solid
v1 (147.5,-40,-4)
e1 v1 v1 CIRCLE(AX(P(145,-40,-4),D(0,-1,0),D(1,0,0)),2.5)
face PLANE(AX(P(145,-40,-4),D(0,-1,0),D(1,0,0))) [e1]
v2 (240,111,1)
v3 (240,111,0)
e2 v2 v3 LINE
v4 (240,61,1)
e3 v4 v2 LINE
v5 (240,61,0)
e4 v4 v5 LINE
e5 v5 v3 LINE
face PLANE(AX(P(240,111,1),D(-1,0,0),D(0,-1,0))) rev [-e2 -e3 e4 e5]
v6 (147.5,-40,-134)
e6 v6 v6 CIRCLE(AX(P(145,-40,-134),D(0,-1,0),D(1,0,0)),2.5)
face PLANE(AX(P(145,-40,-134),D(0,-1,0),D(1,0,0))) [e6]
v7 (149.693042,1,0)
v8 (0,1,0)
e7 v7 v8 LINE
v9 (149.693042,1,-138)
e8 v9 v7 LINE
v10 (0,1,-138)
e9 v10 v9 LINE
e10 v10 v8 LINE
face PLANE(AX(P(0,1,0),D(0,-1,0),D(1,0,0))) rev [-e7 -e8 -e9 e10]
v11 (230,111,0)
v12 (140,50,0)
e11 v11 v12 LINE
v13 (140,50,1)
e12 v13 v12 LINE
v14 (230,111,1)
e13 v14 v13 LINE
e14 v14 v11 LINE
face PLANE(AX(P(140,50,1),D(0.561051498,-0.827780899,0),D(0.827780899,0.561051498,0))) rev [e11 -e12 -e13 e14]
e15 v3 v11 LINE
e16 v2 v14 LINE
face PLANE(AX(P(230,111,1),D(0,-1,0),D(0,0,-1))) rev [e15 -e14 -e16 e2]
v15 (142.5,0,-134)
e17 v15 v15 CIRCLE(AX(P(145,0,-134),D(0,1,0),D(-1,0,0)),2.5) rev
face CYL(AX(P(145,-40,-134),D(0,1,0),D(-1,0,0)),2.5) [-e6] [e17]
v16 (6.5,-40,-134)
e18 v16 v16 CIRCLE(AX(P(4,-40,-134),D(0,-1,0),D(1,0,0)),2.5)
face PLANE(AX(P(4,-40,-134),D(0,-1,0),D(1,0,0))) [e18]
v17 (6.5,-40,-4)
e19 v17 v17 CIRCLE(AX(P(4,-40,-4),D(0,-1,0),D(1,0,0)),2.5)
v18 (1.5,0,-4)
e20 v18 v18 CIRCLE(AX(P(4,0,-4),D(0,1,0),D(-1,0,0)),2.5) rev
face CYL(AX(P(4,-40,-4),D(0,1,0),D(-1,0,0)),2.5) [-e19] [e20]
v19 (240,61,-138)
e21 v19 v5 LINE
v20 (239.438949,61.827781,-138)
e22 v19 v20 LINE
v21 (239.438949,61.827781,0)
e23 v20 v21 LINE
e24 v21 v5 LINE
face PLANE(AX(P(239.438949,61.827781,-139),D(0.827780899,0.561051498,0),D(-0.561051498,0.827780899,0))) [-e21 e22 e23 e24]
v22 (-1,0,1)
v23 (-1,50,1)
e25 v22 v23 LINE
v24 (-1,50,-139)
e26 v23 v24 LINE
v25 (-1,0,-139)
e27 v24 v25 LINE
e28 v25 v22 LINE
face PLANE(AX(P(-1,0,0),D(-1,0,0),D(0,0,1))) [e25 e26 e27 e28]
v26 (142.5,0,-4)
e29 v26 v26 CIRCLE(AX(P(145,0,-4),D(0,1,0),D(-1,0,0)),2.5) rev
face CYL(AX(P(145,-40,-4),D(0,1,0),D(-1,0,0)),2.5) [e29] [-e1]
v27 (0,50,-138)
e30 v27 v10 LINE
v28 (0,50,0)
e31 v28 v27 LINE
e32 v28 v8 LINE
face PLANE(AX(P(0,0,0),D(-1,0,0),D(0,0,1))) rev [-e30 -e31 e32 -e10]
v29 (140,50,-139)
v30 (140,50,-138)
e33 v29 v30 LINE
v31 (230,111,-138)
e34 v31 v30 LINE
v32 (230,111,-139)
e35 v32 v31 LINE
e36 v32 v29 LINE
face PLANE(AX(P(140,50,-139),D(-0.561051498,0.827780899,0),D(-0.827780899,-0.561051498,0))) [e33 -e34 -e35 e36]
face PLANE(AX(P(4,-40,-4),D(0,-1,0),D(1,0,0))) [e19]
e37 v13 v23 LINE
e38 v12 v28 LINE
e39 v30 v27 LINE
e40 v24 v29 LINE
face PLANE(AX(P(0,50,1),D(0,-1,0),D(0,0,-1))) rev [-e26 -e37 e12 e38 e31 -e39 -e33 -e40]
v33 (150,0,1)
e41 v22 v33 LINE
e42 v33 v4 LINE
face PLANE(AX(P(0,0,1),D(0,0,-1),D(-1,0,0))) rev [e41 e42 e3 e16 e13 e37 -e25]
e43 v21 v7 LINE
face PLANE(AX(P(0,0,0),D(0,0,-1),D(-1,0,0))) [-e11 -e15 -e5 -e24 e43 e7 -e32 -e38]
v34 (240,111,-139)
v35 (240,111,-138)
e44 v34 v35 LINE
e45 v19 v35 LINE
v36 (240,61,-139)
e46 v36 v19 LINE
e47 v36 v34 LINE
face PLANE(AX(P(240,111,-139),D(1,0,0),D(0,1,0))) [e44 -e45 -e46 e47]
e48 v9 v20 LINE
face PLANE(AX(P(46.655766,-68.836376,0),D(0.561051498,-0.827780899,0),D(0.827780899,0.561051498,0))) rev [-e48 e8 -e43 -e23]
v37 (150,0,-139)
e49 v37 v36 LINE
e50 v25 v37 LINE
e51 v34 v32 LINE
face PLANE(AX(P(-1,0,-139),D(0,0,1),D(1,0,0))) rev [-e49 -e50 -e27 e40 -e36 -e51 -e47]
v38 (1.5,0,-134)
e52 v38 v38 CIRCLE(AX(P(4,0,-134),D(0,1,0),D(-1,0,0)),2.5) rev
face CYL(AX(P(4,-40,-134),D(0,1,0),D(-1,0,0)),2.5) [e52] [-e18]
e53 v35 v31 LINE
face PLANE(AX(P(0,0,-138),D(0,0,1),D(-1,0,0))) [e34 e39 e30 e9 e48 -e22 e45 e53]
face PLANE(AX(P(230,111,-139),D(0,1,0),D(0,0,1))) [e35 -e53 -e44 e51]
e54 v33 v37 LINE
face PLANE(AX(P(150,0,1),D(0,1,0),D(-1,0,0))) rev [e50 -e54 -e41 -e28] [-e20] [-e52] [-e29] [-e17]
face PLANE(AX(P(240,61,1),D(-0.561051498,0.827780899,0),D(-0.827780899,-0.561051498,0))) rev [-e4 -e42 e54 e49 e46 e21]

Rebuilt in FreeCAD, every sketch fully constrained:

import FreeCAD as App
import Part
import Sketcher

doc = App.newDocument("Part")
params = doc.addObject("Spreadsheet::Sheet", "Params")
for row, (alias, value) in enumerate([
    ("sketch1_width", "150 mm"),
    ("sketch1_width2", "10 mm"),
    ("sketch1_height", "50 mm"),
    ("pad1_length", "1 mm"),
    ("sketch2_width", "50 mm"),
    ("sketch2_height", "140 mm"),
    ("pad2_length", "1 mm"),
    ("sketch3_width", "151 mm"),
    ("sketch3_height", "140 mm"),
    ("pad3_length", "1 mm"),
    ("sketch4_height", "140 mm"),
    ("pad4_length", "1 mm"),
    ("sketch5_diameter", "5 mm"),
    ("pad5_length", "40 mm"),
], start=1):
    params.set(f"A{row}", alias)
    params.set(f"B{row}", "=" + value)
    params.setAlias(f"B{row}", alias)

body = doc.addObject("PartDesign::Body", "Body")

# Sketch on XY plane
sketch1 = body.newObject("Sketcher::SketchObject", "Sketch")
sketch1.AttachmentSupport = (doc.getObject("XY_Plane"), [""])
sketch1.MapMode = "FlatFace"
sketch1.addGeometry(Part.LineSegment(App.Vector(0, 50, 0), App.Vector(0, 0, 0)), False)
sketch1.addGeometry(Part.LineSegment(App.Vector(0, 0, 0), App.Vector(150, 0, 0)), False)
sketch1.addGeometry(Part.LineSegment(App.Vector(150, 0, 0), App.Vector(240, 61, 0)), False)
sketch1.addGeometry(Part.LineSegment(App.Vector(240, 61, 0), App.Vector(240, 111, 0)), False)
sketch1.addGeometry(Part.LineSegment(App.Vector(240, 111, 0), App.Vector(230, 111, 0)), False)
sketch1.addGeometry(Part.LineSegment(App.Vector(230, 111, 0), App.Vector(140, 50, 0)), False)
sketch1.addGeometry(Part.LineSegment(App.Vector(140, 50, 0), App.Vector(0, 50, 0)), False)
sketch1.addConstraint(Sketcher.Constraint("Coincident", 0, 2, 1, 1))
sketch1.addConstraint(Sketcher.Constraint("Coincident", 1, 2, 2, 1))
sketch1.addConstraint(Sketcher.Constraint("Coincident", 2, 2, 3, 1))
sketch1.addConstraint(Sketcher.Constraint("Coincident", 3, 2, 4, 1))
sketch1.addConstraint(Sketcher.Constraint("Coincident", 4, 2, 5, 1))
sketch1.addConstraint(Sketcher.Constraint("Coincident", 5, 2, 6, 1))
sketch1.addConstraint(Sketcher.Constraint("Coincident", 6, 2, 0, 1))
sketch1.addConstraint(Sketcher.Constraint("Vertical", 0))
sketch1.addConstraint(Sketcher.Constraint("Horizontal", 1))
sketch1.addConstraint(Sketcher.Constraint("Vertical", 3))
sketch1.addConstraint(Sketcher.Constraint("Horizontal", 4))
sketch1.addConstraint(Sketcher.Constraint("Horizontal", 6))
sketch1.addConstraint(Sketcher.Constraint("Coincident", 0, 2, -1, 1))
sketch1.addConstraint(Sketcher.Constraint("Parallel", 2, 5))
sketch1.addConstraint(Sketcher.Constraint("Equal", 0, 3))
sketch1.addConstraint(Sketcher.Constraint("DistanceX", 1, 1, 1, 2, 150.0))
sketch1.addConstraint(Sketcher.Constraint("DistanceX", 4, 2, 4, 1, 10.0))
sketch1.addConstraint(Sketcher.Constraint("DistanceY", 0, 2, 0, 1, 50.0))
sketch1.addConstraint(Sketcher.Constraint("DistanceX", -1, 1, 2, 2, 240.0))
sketch1.addConstraint(Sketcher.Constraint("DistanceY", -1, 1, 2, 2, 61.0))
sketch1.setExpression("Constraints[15]", "Params.sketch1_width")
sketch1.setExpression("Constraints[16]", "Params.sketch1_width2")
sketch1.setExpression("Constraints[17]", "Params.sketch1_height")
pad1 = body.newObject("PartDesign::Pad", "Pad")
pad1.Profile = sketch1
pad1.setExpression("Length", "Params.pad1_length")

# Sketch on YZ plane
sketch2 = body.newObject("Sketcher::SketchObject", "Sketch001")
sketch2.AttachmentSupport = (doc.getObject("YZ_Plane"), [""])
sketch2.MapMode = "FlatFace"
sketch2.addGeometry(Part.LineSegment(App.Vector(50, -139, 0), App.Vector(0, -139, 0)), False)
sketch2.addGeometry(Part.LineSegment(App.Vector(0, -139, 0), App.Vector(0, 1, 0)), False)
sketch2.addGeometry(Part.LineSegment(App.Vector(0, 1, 0), App.Vector(50, 1, 0)), False)
sketch2.addGeometry(Part.LineSegment(App.Vector(50, 1, 0), App.Vector(50, -139, 0)), False)
sketch2.addConstraint(Sketcher.Constraint("Coincident", 0, 2, 1, 1))
sketch2.addConstraint(Sketcher.Constraint("Coincident", 1, 2, 2, 1))
sketch2.addConstraint(Sketcher.Constraint("Coincident", 2, 2, 3, 1))
sketch2.addConstraint(Sketcher.Constraint("Coincident", 3, 2, 0, 1))
sketch2.addConstraint(Sketcher.Constraint("Horizontal", 0))
sketch2.addConstraint(Sketcher.Constraint("Vertical", 1))
sketch2.addConstraint(Sketcher.Constraint("Horizontal", 2))
sketch2.addConstraint(Sketcher.Constraint("Vertical", 3))
sketch2.addConstraint(Sketcher.Constraint("PointOnObject", 0, 2, -2))
sketch2.addConstraint(Sketcher.Constraint("DistanceX", 0, 2, 0, 1, 50.0))
sketch2.addConstraint(Sketcher.Constraint("DistanceY", 1, 1, 1, 2, 140.0))
sketch2.addConstraint(Sketcher.Constraint("DistanceY", 0, 2, -1, 1, 139.0))
sketch2.setExpression("Constraints[9]", "Params.sketch2_width")
sketch2.setExpression("Constraints[10]", "Params.sketch2_height")
pad2 = body.newObject("PartDesign::Pad", "Pad001")
pad2.Profile = sketch2
pad2.setExpression("Length", "Params.pad2_length")
pad2.Reversed = True
doc.recompute()

datumplane = body.newObject("PartDesign::Plane", "DatumPlane")
datumplane.AttachmentSupport = (doc.getObject("XY_Plane"), [""])
datumplane.MapMode = "FlatFace"
datumplane.AttachmentOffset = App.Placement(App.Vector(0, 0, -69), App.Rotation())
mirrored = body.newObject("PartDesign::Mirrored", "Mirrored")
mirrored.Originals = [pad1]
mirrored.MirrorPlane = (datumplane, [""])
body.Tip = mirrored

# Sketch on XZ plane
sketch3 = body.newObject("Sketcher::SketchObject", "Sketch002")
sketch3.AttachmentSupport = (doc.getObject("XZ_Plane"), [""])
sketch3.MapMode = "FlatFace"
sketch3.addGeometry(Part.LineSegment(App.Vector(-1, 1, 0), App.Vector(-1, -139, 0)), False)
sketch3.addGeometry(Part.LineSegment(App.Vector(-1, -139, 0), App.Vector(150, -139, 0)), False)
sketch3.addGeometry(Part.LineSegment(App.Vector(150, -139, 0), App.Vector(150, 1, 0)), False)
sketch3.addGeometry(Part.LineSegment(App.Vector(150, 1, 0), App.Vector(-1, 1, 0)), False)
sketch3.addConstraint(Sketcher.Constraint("Coincident", 0, 2, 1, 1))
sketch3.addConstraint(Sketcher.Constraint("Coincident", 1, 2, 2, 1))
sketch3.addConstraint(Sketcher.Constraint("Coincident", 2, 2, 3, 1))
sketch3.addConstraint(Sketcher.Constraint("Coincident", 3, 2, 0, 1))
sketch3.addConstraint(Sketcher.Constraint("Vertical", 0))
sketch3.addConstraint(Sketcher.Constraint("Horizontal", 1))
sketch3.addConstraint(Sketcher.Constraint("Vertical", 2))
sketch3.addConstraint(Sketcher.Constraint("Horizontal", 3))
sketch3.addConstraint(Sketcher.Constraint("DistanceX", 1, 1, 1, 2, 151.0))
sketch3.addConstraint(Sketcher.Constraint("DistanceY", 0, 2, 0, 1, 140.0))
sketch3.addConstraint(Sketcher.Constraint("DistanceX", 0, 2, -1, 1, 1.0))
sketch3.addConstraint(Sketcher.Constraint("DistanceY", 0, 2, -1, 1, 139.0))
sketch3.setExpression("Constraints[8]", "Params.sketch3_width")
sketch3.setExpression("Constraints[9]", "Params.sketch3_height")
pad3 = body.newObject("PartDesign::Pad", "Pad002")
pad3.Profile = sketch3
pad3.setExpression("Length", "Params.pad3_length")
pad3.Reversed = True

# Sketch on an angled plane
sketch4 = body.newObject("Sketcher::SketchObject", "Sketch003")
sketch4.Placement = App.Placement(App.Vector(47.216818, -69.664157, 0), App.Rotation(App.Vector(-0.827780899, -0.561051498, 0), App.Vector(0, 0, -1), App.Vector(0.561051498, -0.827780899, 0), "ZXY"))
sketch4.addGeometry(Part.LineSegment(App.Vector(-233, 139, 0), App.Vector(-233, -1, 0)), False)
sketch4.addGeometry(Part.LineSegment(App.Vector(-233, -1, 0), App.Vector(-124, -1, 0)), False)
sketch4.addGeometry(Part.LineSegment(App.Vector(-124, -1, 0), App.Vector(-124, 139, 0)), False)
sketch4.addGeometry(Part.LineSegment(App.Vector(-124, 139, 0), App.Vector(-233, 139, 0)), False)
sketch4.addConstraint(Sketcher.Constraint("Coincident", 0, 2, 1, 1))
sketch4.addConstraint(Sketcher.Constraint("Coincident", 1, 2, 2, 1))
sketch4.addConstraint(Sketcher.Constraint("Coincident", 2, 2, 3, 1))
sketch4.addConstraint(Sketcher.Constraint("Coincident", 3, 2, 0, 1))
sketch4.addConstraint(Sketcher.Constraint("Vertical", 0))
sketch4.addConstraint(Sketcher.Constraint("Horizontal", 1))
sketch4.addConstraint(Sketcher.Constraint("Vertical", 2))
sketch4.addConstraint(Sketcher.Constraint("Horizontal", 3))
sketch4.addConstraint(Sketcher.Constraint("DistanceY", 0, 2, 0, 1, 140.0))
sketch4.addConstraint(Sketcher.Constraint("DistanceY", 0, 2, -1, 1, 1.0))
sketch4.addConstraint(Sketcher.Constraint("DistanceX", 1, 1, 1, 2, 108.724422))
sketch4.addConstraint(Sketcher.Constraint("DistanceX", 0, 2, -1, 1, 232.891557))
sketch4.setExpression("Constraints[8]", "Params.sketch4_height")
pad4 = body.newObject("PartDesign::Pad", "Pad003")
pad4.Profile = sketch4
pad4.setExpression("Length", "Params.pad4_length")
pad4.Reversed = True

# Sketch on XZ plane
sketch5 = body.newObject("Sketcher::SketchObject", "Sketch004")
sketch5.AttachmentSupport = (doc.getObject("XZ_Plane"), [""])
sketch5.MapMode = "FlatFace"
sketch5.addGeometry(Part.Circle(App.Vector(4, -4, 0), App.Vector(0, 0, 1), 2.5), False)
sketch5.addGeometry(Part.Circle(App.Vector(4, -134, 0), App.Vector(0, 0, 1), 2.5), False)
sketch5.addGeometry(Part.Circle(App.Vector(145, -4, 0), App.Vector(0, 0, 1), 2.5), False)
sketch5.addGeometry(Part.Circle(App.Vector(145, -134, 0), App.Vector(0, 0, 1), 2.5), False)
sketch5.addConstraint(Sketcher.Constraint("Equal", 0, 1))
sketch5.addConstraint(Sketcher.Constraint("Equal", 1, 2))
sketch5.addConstraint(Sketcher.Constraint("Equal", 2, 3))
sketch5.addConstraint(Sketcher.Constraint("Horizontal", 0, 3, 2, 3))
sketch5.addConstraint(Sketcher.Constraint("Horizontal", 1, 3, 3, 3))
sketch5.addConstraint(Sketcher.Constraint("Vertical", 0, 3, 1, 3))
sketch5.addConstraint(Sketcher.Constraint("Vertical", 2, 3, 3, 3))
sketch5.addConstraint(Sketcher.Constraint("Diameter", 0, 5.0))
sketch5.addConstraint(Sketcher.Constraint("DistanceX", -1, 1, 0, 3, 4.0))
sketch5.addConstraint(Sketcher.Constraint("DistanceY", 0, 3, -1, 1, 4.0))
sketch5.addConstraint(Sketcher.Constraint("DistanceY", 1, 3, -1, 1, 134.0))
sketch5.addConstraint(Sketcher.Constraint("DistanceX", -1, 1, 2, 3, 145.0))
sketch5.setExpression("Constraints[7]", "Params.sketch5_diameter")
pad5 = body.newObject("PartDesign::Pad", "Pad004")
pad5.Profile = sketch5
pad5.setExpression("Length", "Params.pad5_length")

doc.recompute()
